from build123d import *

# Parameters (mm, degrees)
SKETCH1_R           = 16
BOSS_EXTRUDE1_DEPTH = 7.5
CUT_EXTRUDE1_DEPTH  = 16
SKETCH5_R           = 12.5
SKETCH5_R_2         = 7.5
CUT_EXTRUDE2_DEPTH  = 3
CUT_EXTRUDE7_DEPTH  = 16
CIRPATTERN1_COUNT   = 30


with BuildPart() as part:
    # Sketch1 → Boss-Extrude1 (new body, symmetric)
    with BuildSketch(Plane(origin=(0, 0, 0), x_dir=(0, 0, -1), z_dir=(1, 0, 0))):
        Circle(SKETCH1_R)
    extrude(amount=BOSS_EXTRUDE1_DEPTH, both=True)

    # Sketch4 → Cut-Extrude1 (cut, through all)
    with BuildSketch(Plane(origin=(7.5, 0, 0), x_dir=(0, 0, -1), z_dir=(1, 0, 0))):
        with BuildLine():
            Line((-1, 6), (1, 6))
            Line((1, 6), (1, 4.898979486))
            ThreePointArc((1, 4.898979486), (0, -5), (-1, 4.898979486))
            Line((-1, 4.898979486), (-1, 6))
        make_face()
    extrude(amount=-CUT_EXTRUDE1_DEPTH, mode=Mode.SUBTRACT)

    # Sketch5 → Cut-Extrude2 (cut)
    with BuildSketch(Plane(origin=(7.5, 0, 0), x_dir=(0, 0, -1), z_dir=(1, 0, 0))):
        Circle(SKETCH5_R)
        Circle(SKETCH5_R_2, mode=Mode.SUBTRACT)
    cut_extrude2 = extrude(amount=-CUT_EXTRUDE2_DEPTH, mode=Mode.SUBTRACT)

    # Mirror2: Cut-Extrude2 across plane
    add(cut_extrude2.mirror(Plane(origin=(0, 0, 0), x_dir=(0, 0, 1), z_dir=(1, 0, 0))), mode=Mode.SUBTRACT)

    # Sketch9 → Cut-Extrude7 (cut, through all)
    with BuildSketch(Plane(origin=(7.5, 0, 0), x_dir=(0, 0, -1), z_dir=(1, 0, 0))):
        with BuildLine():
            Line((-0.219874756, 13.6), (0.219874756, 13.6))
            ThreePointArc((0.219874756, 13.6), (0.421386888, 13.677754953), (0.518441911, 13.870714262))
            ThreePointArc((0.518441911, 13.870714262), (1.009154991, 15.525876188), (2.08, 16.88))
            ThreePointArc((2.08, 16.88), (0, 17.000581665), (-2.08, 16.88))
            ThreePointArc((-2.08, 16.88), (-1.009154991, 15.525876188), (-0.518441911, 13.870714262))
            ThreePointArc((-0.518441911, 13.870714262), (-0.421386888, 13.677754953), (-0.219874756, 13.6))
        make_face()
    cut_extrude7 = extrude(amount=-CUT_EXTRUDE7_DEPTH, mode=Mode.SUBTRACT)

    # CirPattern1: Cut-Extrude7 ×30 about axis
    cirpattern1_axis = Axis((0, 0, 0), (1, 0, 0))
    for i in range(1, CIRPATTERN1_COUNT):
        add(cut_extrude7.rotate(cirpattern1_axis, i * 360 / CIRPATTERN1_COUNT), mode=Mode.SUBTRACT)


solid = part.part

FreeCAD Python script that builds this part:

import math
import FreeCAD as App
import Part
import Sketcher
from FreeCAD import Vector
Q = App.Units.Quantity

doc = App.newDocument("Part")
body = doc.addObject("PartDesign::Body", "Body")

# Sketch on YZ plane
sketch1 = body.newObject("Sketcher::SketchObject", "Sketch")
sketch1.AttachmentSupport = (doc.getObject("YZ_Plane"), [""])
sketch1.MapMode = "FlatFace"
sketch1.addGeometry(Part.Circle(Vector(0, 0, 0), Vector(0, 0, 1), 16), False)
sketch1.addConstraint([
    Sketcher.Constraint("Coincident", 0, 3, -1, 1),
    Sketcher.Constraint("Diameter", 0, Q("32 mm")),
])
pad1 = body.newObject("PartDesign::Pad", "Pad")
pad1.Profile = sketch1
pad1.Length = 15
pad1.Midplane = True

# Sketch on YZ plane
sketch2 = body.newObject("Sketcher::SketchObject", "Sketch001")
sketch2.AttachmentSupport = (doc.getObject("YZ_Plane"), [""])
sketch2.MapMode = "FlatFace"
sketch2.AttachmentOffset = App.Placement(Vector(0, 0, 7.5), App.Rotation())
sketch2.addGeometry([
    Part.LineSegment(Vector(6, -1, 0), Vector(6, 1, 0)),
    Part.LineSegment(Vector(6, 1, 0), Vector(4.9, 1, 0)),
    Part.ArcOfCircle(Part.Circle(Vector(0, 0, 0), Vector(0, 0, 1), 5), math.radians(12), math.radians(348)),
    Part.LineSegment(Vector(4.9, -1, 0), Vector(6, -1, 0)),
], False)
sketch2.addConstraint([
    Sketcher.Constraint("Coincident", 0, 2, 1, 1),
    Sketcher.Constraint("Coincident", 1, 2, 2, 1),
    Sketcher.Constraint("Coincident", 2, 2, 3, 1),
    Sketcher.Constraint("Coincident", 3, 2, 0, 1),
    Sketcher.Constraint("Vertical", 0),
    Sketcher.Constraint("Horizontal", 1),
    Sketcher.Constraint("Horizontal", 3),
    Sketcher.Constraint("Coincident", 2, 3, -1, 1),
    Sketcher.Constraint("Vertical", 1, 2, 2, 2),
    Sketcher.Constraint("Radius", 2, Q("5 mm")),
    Sketcher.Constraint("DistanceY", 0, 1, 0, 2, Q("2 mm")),
    Sketcher.Constraint("DistanceX", -1, 1, 0, 2, Q("6 mm")),
])
pocket1 = body.newObject("PartDesign::Pocket", "Pocket")
pocket1.Profile = sketch2
pocket1.Type = "ThroughAll"

# Sketch on YZ plane
sketch3 = body.newObject("Sketcher::SketchObject", "Sketch002")
sketch3.AttachmentSupport = (doc.getObject("YZ_Plane"), [""])
sketch3.MapMode = "FlatFace"
sketch3.AttachmentOffset = App.Placement(Vector(0, 0, 7.5), App.Rotation())
sketch3.addGeometry([
    Part.Circle(Vector(0, 0, 0), Vector(0, 0, 1), 12),
    Part.Circle(Vector(0, 0, 0), Vector(0, 0, 1), 8),
], False)
sketch3.addConstraint([
    Sketcher.Constraint("Coincident", 0, 3, -1, 1),
    Sketcher.Constraint("Coincident", 1, 3, -1, 1),
    Sketcher.Constraint("Diameter", 0, Q("25 mm")),
    Sketcher.Constraint("Diameter", 1, Q("15 mm")),
])
pocket2 = body.newObject("PartDesign::Pocket", "Pocket001")
pocket2.Profile = sketch3
pocket2.Length = 3
doc.recompute()

mirrored = body.newObject("PartDesign::Mirrored", "Mirrored")
mirrored.Originals = [pocket2]
mirrored.MirrorPlane = (doc.getObject("YZ_Plane"), [""])
body.Tip = mirrored

# Sketch on YZ plane
sketch4 = body.newObject("Sketcher::SketchObject", "Sketch003")
sketch4.AttachmentSupport = (doc.getObject("YZ_Plane"), [""])
sketch4.MapMode = "FlatFace"
sketch4.AttachmentOffset = App.Placement(Vector(0, 0, 7.5), App.Rotation())
sketch4.addGeometry([
    Part.LineSegment(Vector(13.6, 0.22, 0), Vector(13.6, -0.22, 0)),  # 0
    Part.ArcOfCircle(Part.Circle(Vector(13.9, -0.22, 0), Vector(0, 0, 1), 0.3), math.radians(180), math.radians(264)),  # 1
    Part.ArcOfCircle(Part.Circle(Vector(13.43, -5.06, 0), Vector(0, 0, 1), 4.56), math.radians(41), math.radians(84)),  # 2
    Part.ArcOfCircle(Part.Circle(Vector(-1, 0, 0), Vector(0, 0, 1), 18), math.radians(-6.64), math.radians(6.64)),  # 3
    Part.ArcOfCircle(Part.Circle(Vector(13.43, 5.06, 0), Vector(0, 0, 1), 4.56), math.radians(-84), math.radians(-41)),  # 4
    Part.ArcOfCircle(Part.Circle(Vector(13.9, 0.22, 0), Vector(0, 0, 1), 0.3), math.radians(96), math.radians(180)),  # 5
], False)
sketch4.addConstraint([
    Sketcher.Constraint("Tangent", 0, 2, 1, 1),
    Sketcher.Constraint("Tangent", 1, 2, 2, 2),
    Sketcher.Constraint("Coincident", 2, 1, 3, 1),
    Sketcher.Constraint("Coincident", 3, 2, 4, 2),
    Sketcher.Constraint("Tangent", 4, 1, 5, 1),
    Sketcher.Constraint("Tangent", 5, 2, 0, 1),
    Sketcher.Constraint("Vertical", 0),
    Sketcher.Constraint("Equal", 2, 4),
    Sketcher.Constraint("Equal", 1, 5),
    Sketcher.Constraint("Symmetric", 2, 3, 4, 3, -1),
    Sketcher.Constraint("PointOnObject", 3, 3, -1),
    Sketcher.Constraint("Radius", 3, Q("18 mm")),
    Sketcher.Constraint("Radius", 1, Q("0.3 mm")),
    Sketcher.Constraint("Radius", 2, Q("4.56 mm")),
    Sketcher.Constraint("DistanceX", -1, 1, 1, 3, Q("13.9 mm")),
    Sketcher.Constraint("DistanceX", -1, 1, 2, 1, Q("16.88 mm")),
    Sketcher.Constraint("DistanceY", 2, 1, -1, 1, Q("2.08 mm")),
    Sketcher.Constraint("DistanceY", 0, 2, 0, 1, Q("0.43975 mm")),
])
pocket3 = body.newObject("PartDesign::Pocket", "Pocket002")
pocket3.Profile = sketch4
pocket3.Type = "ThroughAll"
doc.recompute()

polarpattern = body.newObject("PartDesign::PolarPattern", "PolarPattern")
polarpattern.Originals = [pocket3]
polarpattern.Axis = (doc.getObject("X_Axis"), [""])
polarpattern.Angle = 360
polarpattern.Occurrences = 30
body.Tip = polarpattern

doc.recompute()
